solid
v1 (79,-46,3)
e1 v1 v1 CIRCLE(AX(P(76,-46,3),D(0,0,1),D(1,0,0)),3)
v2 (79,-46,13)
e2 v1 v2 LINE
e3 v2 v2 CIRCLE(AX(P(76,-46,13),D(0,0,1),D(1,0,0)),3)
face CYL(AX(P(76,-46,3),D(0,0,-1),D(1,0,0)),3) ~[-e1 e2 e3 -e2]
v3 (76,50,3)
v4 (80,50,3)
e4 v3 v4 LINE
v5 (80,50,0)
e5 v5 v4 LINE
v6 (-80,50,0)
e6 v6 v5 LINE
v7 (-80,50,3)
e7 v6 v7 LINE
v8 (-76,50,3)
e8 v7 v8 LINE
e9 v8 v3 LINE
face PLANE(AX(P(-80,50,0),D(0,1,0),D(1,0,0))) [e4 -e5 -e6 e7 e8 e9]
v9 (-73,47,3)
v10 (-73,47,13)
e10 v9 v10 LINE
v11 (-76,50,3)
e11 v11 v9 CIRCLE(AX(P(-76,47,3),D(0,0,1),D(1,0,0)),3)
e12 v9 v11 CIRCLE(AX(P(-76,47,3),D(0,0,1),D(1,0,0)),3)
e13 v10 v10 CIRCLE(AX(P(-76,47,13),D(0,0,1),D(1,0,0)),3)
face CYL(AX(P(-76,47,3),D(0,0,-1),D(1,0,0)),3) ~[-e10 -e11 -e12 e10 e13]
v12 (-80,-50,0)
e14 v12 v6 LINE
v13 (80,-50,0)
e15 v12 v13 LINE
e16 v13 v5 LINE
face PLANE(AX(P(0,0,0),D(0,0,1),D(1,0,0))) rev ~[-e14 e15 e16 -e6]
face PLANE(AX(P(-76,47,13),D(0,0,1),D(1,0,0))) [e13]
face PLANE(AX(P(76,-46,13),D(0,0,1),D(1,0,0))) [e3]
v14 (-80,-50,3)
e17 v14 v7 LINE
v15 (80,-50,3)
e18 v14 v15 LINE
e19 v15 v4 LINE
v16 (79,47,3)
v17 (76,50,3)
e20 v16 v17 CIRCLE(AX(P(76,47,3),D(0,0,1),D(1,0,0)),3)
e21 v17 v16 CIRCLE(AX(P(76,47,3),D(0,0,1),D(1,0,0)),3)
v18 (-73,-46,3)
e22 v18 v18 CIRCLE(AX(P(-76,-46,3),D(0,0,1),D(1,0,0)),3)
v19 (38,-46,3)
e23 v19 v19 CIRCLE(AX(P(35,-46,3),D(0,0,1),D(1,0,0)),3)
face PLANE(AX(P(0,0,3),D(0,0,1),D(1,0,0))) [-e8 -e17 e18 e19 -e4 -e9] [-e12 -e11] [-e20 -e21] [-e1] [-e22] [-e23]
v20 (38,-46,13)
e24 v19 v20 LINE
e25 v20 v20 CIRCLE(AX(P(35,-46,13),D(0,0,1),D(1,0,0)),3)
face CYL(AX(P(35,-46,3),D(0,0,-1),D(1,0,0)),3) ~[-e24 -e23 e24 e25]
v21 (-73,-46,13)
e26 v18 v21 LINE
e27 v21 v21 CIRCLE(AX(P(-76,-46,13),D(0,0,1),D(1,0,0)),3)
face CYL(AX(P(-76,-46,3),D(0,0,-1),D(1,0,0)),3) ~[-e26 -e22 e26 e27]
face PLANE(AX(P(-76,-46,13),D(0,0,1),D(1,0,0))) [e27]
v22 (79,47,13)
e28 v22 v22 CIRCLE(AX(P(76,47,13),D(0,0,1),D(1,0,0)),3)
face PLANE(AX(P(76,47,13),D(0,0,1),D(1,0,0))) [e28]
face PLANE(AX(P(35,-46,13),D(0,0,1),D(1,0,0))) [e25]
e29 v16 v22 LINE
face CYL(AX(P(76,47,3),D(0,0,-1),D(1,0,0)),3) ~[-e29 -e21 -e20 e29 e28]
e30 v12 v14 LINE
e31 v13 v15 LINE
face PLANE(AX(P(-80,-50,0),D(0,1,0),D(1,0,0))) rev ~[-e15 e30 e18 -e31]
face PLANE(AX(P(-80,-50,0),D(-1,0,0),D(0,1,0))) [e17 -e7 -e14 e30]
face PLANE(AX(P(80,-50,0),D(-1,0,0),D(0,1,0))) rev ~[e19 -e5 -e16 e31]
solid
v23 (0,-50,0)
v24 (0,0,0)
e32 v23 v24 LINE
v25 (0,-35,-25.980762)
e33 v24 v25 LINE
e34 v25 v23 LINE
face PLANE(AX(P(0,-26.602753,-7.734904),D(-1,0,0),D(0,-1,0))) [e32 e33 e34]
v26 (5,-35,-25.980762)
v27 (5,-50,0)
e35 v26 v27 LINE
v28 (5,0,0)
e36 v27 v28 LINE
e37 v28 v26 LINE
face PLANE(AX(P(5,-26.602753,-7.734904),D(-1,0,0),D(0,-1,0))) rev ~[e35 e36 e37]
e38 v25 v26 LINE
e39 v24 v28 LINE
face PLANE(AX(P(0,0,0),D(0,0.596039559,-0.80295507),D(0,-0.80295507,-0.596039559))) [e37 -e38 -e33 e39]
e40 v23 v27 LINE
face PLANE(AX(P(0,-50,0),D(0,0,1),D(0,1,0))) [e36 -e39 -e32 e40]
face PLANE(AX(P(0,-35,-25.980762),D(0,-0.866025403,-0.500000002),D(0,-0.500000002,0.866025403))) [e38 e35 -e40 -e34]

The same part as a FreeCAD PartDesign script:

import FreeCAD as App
import Part
import Sketcher
from FreeCAD import Vector
Q = App.Units.Quantity


def add_polygon(sketch, points):
    """Adds a closed chain of lines whose ends are joined by coincident constraints."""
    first, n = sketch.GeometryCount, len(points)
    for a, b in zip(points, points[1:] + points[:1]):
        sketch.addGeometry(Part.LineSegment(App.Vector(*a, 0), App.Vector(*b, 0)), False)
    for i in range(n):
        sketch.addConstraint(Sketcher.Constraint("Coincident", first + i, 2, first + (i + 1) % n, 1))

doc = App.newDocument("Part")
params = doc.addObject("Spreadsheet::Sheet", "Params")
for row, (alias, value) in enumerate([
    ("sketch1_width", "160 mm"),
    ("sketch1_height", "100 mm"),
    ("pad1_length", "3 mm"),
    ("sketch2_diameter", "6 mm"),
    ("pad2_length", "10 mm"),
    ("sketch3_width", "50 mm"),
    ("sketch3_length", "30 mm"),
    ("pad3_length", "5 mm"),
], start=1):
    params.set(f"A{row}", alias)
    params.set(f"B{row}", "=" + value)
    params.setAlias(f"B{row}", alias)

body = doc.addObject("PartDesign::Body", "Body")

# Sketch on XY plane
sketch1 = body.newObject("Sketcher::SketchObject", "Sketch")
sketch1.AttachmentSupport = (doc.getObject("XY_Plane"), [""])
sketch1.MapMode = "FlatFace"
add_polygon(sketch1, [(-80, 50), (-80, -50), (80, -50), (80, 50)])  # lines 0-3
sketch1.addConstraint([
    Sketcher.Constraint("Vertical", 0),
    Sketcher.Constraint("Horizontal", 1),
    Sketcher.Constraint("Vertical", 2),
    Sketcher.Constraint("Horizontal", 3),
    Sketcher.Constraint("Symmetric", 0, 2, 2, 2, -1, 1),
    Sketcher.Constraint("DistanceX", 1, 1, 1, 2, 160.0),
    Sketcher.Constraint("DistanceY", 0, 2, 0, 1, 100.0),
])
sketch1.setExpression("Constraints[9]", "Params.sketch1_width")
sketch1.setExpression("Constraints[10]", "Params.sketch1_height")
pad1 = body.newObject("PartDesign::Pad", "Pad")
pad1.Profile = sketch1
pad1.setExpression("Length", "Params.pad1_length")

# Sketch on XY plane
sketch2 = body.newObject("Sketcher::SketchObject", "Sketch001")
sketch2.AttachmentSupport = (doc.getObject("XY_Plane"), [""])
sketch2.MapMode = "FlatFace"
sketch2.AttachmentOffset = App.Placement(Vector(0, 0, 3), App.Rotation())
sketch2.addGeometry([
    Part.Circle(Vector(-76, 47, 0), Vector(0, 0, 1), 3),  # 0
    Part.Circle(Vector(76, 47, 0), Vector(0, 0, 1), 3),  # 1
    Part.Circle(Vector(76, -46, 0), Vector(0, 0, 1), 3),  # 2
    Part.Circle(Vector(-76, -46, 0), Vector(0, 0, 1), 3),  # 3
    Part.Circle(Vector(35, -46, 0), Vector(0, 0, 1), 3),  # 4
], False)
sketch2.addConstraint([
    Sketcher.Constraint("Equal", 0, 1),
    Sketcher.Constraint("Equal", 1, 2),
    Sketcher.Constraint("Equal", 2, 3),
    Sketcher.Constraint("Equal", 3, 4),
    Sketcher.Constraint("Symmetric", 0, 3, 1, 3, -2),
    Sketcher.Constraint("Symmetric", 2, 3, 3, 3, -2),
    Sketcher.Constraint("Horizontal", 3, 3, 4, 3),
    Sketcher.Constraint("Vertical", 1, 3, 2, 3),
    Sketcher.Constraint("Diameter", 0, 6.0),
    Sketcher.Constraint("DistanceX", 0, 3, -1, 1, 76.0),
    Sketcher.Constraint("DistanceY", -1, 1, 0, 3, 47.0),
    Sketcher.Constraint("DistanceY", 2, 3, -1, 1, 46.0),
    Sketcher.Constraint("DistanceX", -1, 1, 4, 3, 35.0),
])
sketch2.setExpression("Constraints[8]", "Params.sketch2_diameter")
pad2 = body.newObject("PartDesign::Pad", "Pad001")
pad2.Profile = sketch2
pad2.setExpression("Length", "Params.pad2_length")
body2 = doc.addObject("PartDesign::Body", "Body001")

# Sketch on YZ plane
sketch3 = body2.newObject("Sketcher::SketchObject", "Sketch002")
sketch3.AttachmentSupport = (doc.getObject("YZ_Plane001"), [""])
sketch3.MapMode = "FlatFace"
add_polygon(sketch3, [(0, 0), (-50, 0), (-35, -26)])  # lines 0-2
sketch3.addConstraint([
    Sketcher.Constraint("Horizontal", 0),
    Sketcher.Constraint("Coincident", 2, 2, -1, 1),
    Sketcher.Constraint("DistanceX", 0, 2, 0, 1, 50.0),
    Sketcher.Constraint("Angle", 1, Q("-60 deg")),
    Sketcher.Constraint("Distance", 1, 30.0),
])
sketch3.setExpression("Constraints[5]", "Params.sketch3_width")
sketch3.setExpression("Constraints[7]", "Params.sketch3_length")
pad3 = body2.newObject("PartDesign::Pad", "Pad002")
pad3.Profile = sketch3
pad3.setExpression("Length", "Params.pad3_length")

doc.recompute()
